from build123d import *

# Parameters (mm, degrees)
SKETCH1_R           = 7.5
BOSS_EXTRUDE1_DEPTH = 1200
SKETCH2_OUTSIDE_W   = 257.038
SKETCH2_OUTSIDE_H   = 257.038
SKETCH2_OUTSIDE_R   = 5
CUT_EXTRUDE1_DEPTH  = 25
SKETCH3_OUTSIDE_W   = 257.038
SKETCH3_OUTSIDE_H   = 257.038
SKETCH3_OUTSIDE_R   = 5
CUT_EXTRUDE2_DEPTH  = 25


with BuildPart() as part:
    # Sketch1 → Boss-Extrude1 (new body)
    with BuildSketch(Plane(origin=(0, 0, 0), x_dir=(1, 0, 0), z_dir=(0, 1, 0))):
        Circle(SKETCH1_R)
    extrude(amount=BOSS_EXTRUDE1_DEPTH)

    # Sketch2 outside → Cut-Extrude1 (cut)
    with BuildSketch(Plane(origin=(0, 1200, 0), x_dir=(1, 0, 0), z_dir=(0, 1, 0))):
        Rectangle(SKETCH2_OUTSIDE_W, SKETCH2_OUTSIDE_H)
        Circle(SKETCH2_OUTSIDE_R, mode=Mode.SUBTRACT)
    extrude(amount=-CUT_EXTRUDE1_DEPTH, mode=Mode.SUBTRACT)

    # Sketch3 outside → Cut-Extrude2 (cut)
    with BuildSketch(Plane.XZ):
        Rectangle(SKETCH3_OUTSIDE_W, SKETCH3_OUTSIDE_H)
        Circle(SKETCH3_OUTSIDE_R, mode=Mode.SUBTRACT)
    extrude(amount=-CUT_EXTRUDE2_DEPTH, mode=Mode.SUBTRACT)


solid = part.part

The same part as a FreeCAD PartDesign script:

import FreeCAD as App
import Part
import Sketcher
from FreeCAD import Vector
Q = App.Units.Quantity


def add_polygon(sketch, points):
    """Adds a closed chain of lines whose ends are joined by coincident constraints."""
    first, n = sketch.GeometryCount, len(points)
    for a, b in zip(points, points[1:] + points[:1]):
        sketch.addGeometry(Part.LineSegment(App.Vector(*a, 0), App.Vector(*b, 0)), False)
    for i in range(n):
        sketch.addConstraint(Sketcher.Constraint("Coincident", first + i, 2, first + (i + 1) % n, 1))

doc = App.newDocument("Part")
body = doc.addObject("PartDesign::Body", "Body")

# Sketch on XZ plane
sketch1 = body.newObject("Sketcher::SketchObject", "Sketch")
sketch1.AttachmentSupport = (doc.getObject("XZ_Plane"), [""])
sketch1.MapMode = "FlatFace"
sketch1.addGeometry(Part.Circle(Vector(0, 0, 0), Vector(0, 0, 1), 7.5), False)
sketch1.addConstraint(Sketcher.Constraint("Coincident", 0, 3, -1, 1))
sketch1.addConstraint(Sketcher.Constraint("Diameter", 0, Q("15 mm")))
pad1 = body.newObject("PartDesign::Pad", "Pad")
pad1.Profile = sketch1
pad1.Length = 1200
pad1.Reversed = True

# Sketch on XZ plane
sketch2 = body.newObject("Sketcher::SketchObject", "Sketch001")
sketch2.AttachmentSupport = (doc.getObject("XZ_Plane"), [""])
sketch2.MapMode = "FlatFace"
sketch2.AttachmentOffset = App.Placement(Vector(0, 0, -1200), App.Rotation())
add_polygon(sketch2, [(-128.519, -128.519), (-128.519, 128.519), (128.519, 128.519), (128.519, -128.519)])  # lines 0-3
sketch2.addGeometry(Part.Circle(Vector(0, 0, 0), Vector(0, 0, 1), 5), False)  # 4
sketch2.addConstraint(Sketcher.Constraint("Vertical", 0))
sketch2.addConstraint(Sketcher.Constraint("Horizontal", 1))
sketch2.addConstraint(Sketcher.Constraint("Vertical", 2))
sketch2.addConstraint(Sketcher.Constraint("Horizontal", 3))
sketch2.addConstraint(Sketcher.Constraint("Coincident", 4, 3, -1, 1))
sketch2.addConstraint(Sketcher.Constraint("Symmetric", 0, 2, 2, 2, -1, 1))
sketch2.addConstraint(Sketcher.Constraint("Equal", 3, 0))
sketch2.addConstraint(Sketcher.Constraint("Diameter", 4, Q("10 mm")))
sketch2.addConstraint(Sketcher.Constraint("DistanceX", 1, 1, 1, 2, Q("257.038 mm")))
pocket1 = body.newObject("PartDesign::Pocket", "Pocket")
pocket1.Profile = sketch2
pocket1.Length = 25
pocket1.Reversed = True

# Sketch on XZ plane
sketch3 = body.newObject("Sketcher::SketchObject", "Sketch002")
sketch3.AttachmentSupport = (doc.getObject("XZ_Plane"), [""])
sketch3.MapMode = "FlatFace"
add_polygon(sketch3, [(-128.519, 128.519), (-128.519, -128.519), (128.519, -128.519), (128.519, 128.519)])  # lines 0-3
sketch3.addGeometry(Part.Circle(Vector(0, 0, 0), Vector(0, 0, 1), 5), False)  # 4
sketch3.addConstraint(Sketcher.Constraint("Vertical", 0))
sketch3.addConstraint(Sketcher.Constraint("Horizontal", 1))
sketch3.addConstraint(Sketcher.Constraint("Vertical", 2))
sketch3.addConstraint(Sketcher.Constraint("Horizontal", 3))
sketch3.addConstraint(Sketcher.Constraint("Coincident", 4, 3, -1, 1))
sketch3.addConstraint(Sketcher.Constraint("Symmetric", 0, 2, 2, 2, -1, 1))
sketch3.addConstraint(Sketcher.Constraint("Equal", 3, 0))
sketch3.addConstraint(Sketcher.Constraint("Diameter", 4, Q("10 mm")))
sketch3.addConstraint(Sketcher.Constraint("DistanceX", 1, 1, 1, 2, Q("257.038 mm")))
pocket2 = body.newObject("PartDesign::Pocket", "Pocket001")
pocket2.Profile = sketch3
pocket2.Length = 25

doc.recompute()
